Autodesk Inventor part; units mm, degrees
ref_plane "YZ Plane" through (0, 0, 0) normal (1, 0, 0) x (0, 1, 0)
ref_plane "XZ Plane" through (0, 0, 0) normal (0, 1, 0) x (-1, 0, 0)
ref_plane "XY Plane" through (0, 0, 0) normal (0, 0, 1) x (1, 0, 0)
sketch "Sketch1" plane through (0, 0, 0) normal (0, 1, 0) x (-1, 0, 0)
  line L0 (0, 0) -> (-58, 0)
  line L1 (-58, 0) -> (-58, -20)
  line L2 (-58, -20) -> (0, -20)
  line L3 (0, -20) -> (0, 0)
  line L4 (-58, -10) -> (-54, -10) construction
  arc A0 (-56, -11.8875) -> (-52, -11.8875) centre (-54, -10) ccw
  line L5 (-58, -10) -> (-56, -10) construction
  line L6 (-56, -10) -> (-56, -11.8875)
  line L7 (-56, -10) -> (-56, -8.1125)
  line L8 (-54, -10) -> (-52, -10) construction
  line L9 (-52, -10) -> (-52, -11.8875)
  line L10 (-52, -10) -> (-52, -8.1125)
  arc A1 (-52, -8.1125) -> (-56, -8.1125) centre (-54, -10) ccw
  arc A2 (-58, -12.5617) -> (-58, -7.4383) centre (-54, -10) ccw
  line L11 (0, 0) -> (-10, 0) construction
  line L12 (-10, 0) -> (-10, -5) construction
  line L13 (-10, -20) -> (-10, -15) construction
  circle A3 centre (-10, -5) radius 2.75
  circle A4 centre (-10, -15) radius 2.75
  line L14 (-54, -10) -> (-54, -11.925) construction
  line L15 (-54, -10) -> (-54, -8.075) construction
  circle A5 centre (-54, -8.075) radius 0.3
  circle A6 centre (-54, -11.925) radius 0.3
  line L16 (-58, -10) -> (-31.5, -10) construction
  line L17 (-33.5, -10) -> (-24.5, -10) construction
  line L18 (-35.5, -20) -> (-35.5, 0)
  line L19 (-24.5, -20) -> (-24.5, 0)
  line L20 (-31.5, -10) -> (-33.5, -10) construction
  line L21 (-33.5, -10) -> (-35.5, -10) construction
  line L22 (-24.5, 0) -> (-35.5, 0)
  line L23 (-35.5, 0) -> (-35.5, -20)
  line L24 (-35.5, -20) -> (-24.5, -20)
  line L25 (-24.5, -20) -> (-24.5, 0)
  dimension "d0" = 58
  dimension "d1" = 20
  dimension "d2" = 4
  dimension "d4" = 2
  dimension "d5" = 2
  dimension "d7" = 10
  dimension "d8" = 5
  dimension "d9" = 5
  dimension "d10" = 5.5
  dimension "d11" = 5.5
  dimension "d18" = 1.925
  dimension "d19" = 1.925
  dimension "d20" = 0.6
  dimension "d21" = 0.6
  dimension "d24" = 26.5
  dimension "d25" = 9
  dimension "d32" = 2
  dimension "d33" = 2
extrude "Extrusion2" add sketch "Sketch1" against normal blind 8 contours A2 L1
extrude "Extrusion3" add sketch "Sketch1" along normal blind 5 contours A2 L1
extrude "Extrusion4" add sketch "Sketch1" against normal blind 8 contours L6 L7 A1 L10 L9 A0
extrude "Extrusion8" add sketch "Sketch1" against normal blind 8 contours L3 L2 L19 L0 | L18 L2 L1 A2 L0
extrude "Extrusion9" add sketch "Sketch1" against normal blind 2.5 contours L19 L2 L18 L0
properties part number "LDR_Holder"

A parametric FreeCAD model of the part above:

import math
import FreeCAD as App
import Part
import Sketcher

doc = App.newDocument("Part")
params = doc.addObject("Spreadsheet::Sheet", "Params")
for row, (alias, value) in enumerate([
    ("sketch1_radius", "2.75 mm"),
    ("sketch1_width", "4 mm"),
    ("sketch1_radius2", "4.75 mm"),
    ("pad1_length", "8 mm"),
    ("sketch2_radius", "2.75 mm"),
    ("sketch2_width", "4 mm"),
    ("sketch2_radius2", "4.75 mm"),
    ("pad2_length", "5 mm"),
    ("sketch3_diameter", "0.6 mm"),
    ("sketch3_radius", "2.75 mm"),
    ("pad3_length", "8 mm"),
    ("sketch4_diameter", "5.5 mm"),
    ("sketch4_height", "20 mm"),
    ("sketch4_radius", "4.75 mm"),
    ("sketch4_width", "24.5 mm"),
    ("sketch4_width2", "22.5 mm"),
    ("pad4_length", "8 mm"),
    ("sketch5_height", "20 mm"),
    ("sketch5_width", "11 mm"),
    ("pad5_length", "2.5 mm"),
], start=1):
    params.set(f"A{row}", alias)
    params.set(f"B{row}", "=" + value)
    params.setAlias(f"B{row}", alias)

body = doc.addObject("PartDesign::Body", "Body")
body.AllowCompound = True

# Sketch on XZ plane
sketch1 = body.newObject("Sketcher::SketchObject", "Sketch")
sketch1.AttachmentSupport = (doc.getObject("XZ_Plane"), [""])
sketch1.MapMode = "FlatFace"
sketch1.addGeometry([
    Part.ArcOfCircle(Part.Circle(App.Vector(54, -10, 0), App.Vector(0, 0, 1), 4.74998), math.radians(32.636515), math.radians(327.363485)),  # 0
    Part.LineSegment(App.Vector(58, -7.4383, 0), App.Vector(58, -12.5617, 0)),  # 1
    Part.ArcOfCircle(Part.Circle(App.Vector(54, -10, 0), App.Vector(0, 0, 1), 2.750028), math.radians(-136.657615), math.radians(-43.342385)),  # 2
    Part.LineSegment(App.Vector(56, -11.8875, 0), App.Vector(56, -8.1125, 0)),  # 3
    Part.ArcOfCircle(Part.Circle(App.Vector(54, -10, 0), App.Vector(0, 0, 1), 2.750028), math.radians(43.342385), math.radians(136.657615)),  # 4
    Part.LineSegment(App.Vector(52, -8.1125, 0), App.Vector(52, -11.8875, 0)),  # 5
], False)
sketch1.addConstraint([
    Sketcher.Constraint("Coincident", 0, 1, 1, 1),
    Sketcher.Constraint("Coincident", 1, 2, 0, 2),
    Sketcher.Constraint("Coincident", 2, 2, 3, 1),
    Sketcher.Constraint("Coincident", 3, 2, 4, 1),
    Sketcher.Constraint("Coincident", 4, 2, 5, 1),
    Sketcher.Constraint("Coincident", 5, 2, 2, 1),
    Sketcher.Constraint("Vertical", 1),
    Sketcher.Constraint("Vertical", 3),
    Sketcher.Constraint("Vertical", 5),
    Sketcher.Constraint("Coincident", 2, 3, 0, 3),
    Sketcher.Constraint("Coincident", 4, 3, 0, 3),
    Sketcher.Constraint("Equal", 2, 4),
    Sketcher.Constraint("Horizontal", 3, 2, 4, 2),
    Sketcher.Constraint("Radius", 2, 2.75),
    Sketcher.Constraint("DistanceY", 0, 3, -1, 1, 10.0),
    Sketcher.Constraint("DistanceX", -1, 1, 0, 1, 58.0),
    Sketcher.Constraint("DistanceX", 0, 3, 0, 1, 4.0),
    Sketcher.Constraint("DistanceX", 2, 2, 1, 2, 2.0),
    Sketcher.Constraint("Radius", 0, 4.75),
])
sketch1.setExpression("Constraints[13]", "Params.sketch1_radius")
sketch1.setExpression("Constraints[16]", "Params.sketch1_width")
sketch1.setExpression("Constraints[18]", "Params.sketch1_radius2")
pad1 = body.newObject("PartDesign::Pad", "Pad")
pad1.Profile = sketch1
pad1.setExpression("Length", "Params.pad1_length")

# Sketch on XZ plane
sketch2 = body.newObject("Sketcher::SketchObject", "Sketch001")
sketch2.AttachmentSupport = (doc.getObject("XZ_Plane"), [""])
sketch2.MapMode = "FlatFace"
sketch2.addGeometry([
    Part.ArcOfCircle(Part.Circle(App.Vector(54, -10, 0), App.Vector(0, 0, 1), 4.74998), math.radians(32.636515), math.radians(327.363485)),  # 0
    Part.LineSegment(App.Vector(58, -7.4383, 0), App.Vector(58, -12.5617, 0)),  # 1
    Part.ArcOfCircle(Part.Circle(App.Vector(54, -10, 0), App.Vector(0, 0, 1), 2.750028), math.radians(-136.657615), math.radians(-43.342385)),  # 2
    Part.LineSegment(App.Vector(56, -11.8875, 0), App.Vector(56, -8.1125, 0)),  # 3
    Part.ArcOfCircle(Part.Circle(App.Vector(54, -10, 0), App.Vector(0, 0, 1), 2.750028), math.radians(43.342385), math.radians(136.657615)),  # 4
    Part.LineSegment(App.Vector(52, -8.1125, 0), App.Vector(52, -11.8875, 0)),  # 5
], False)
sketch2.addConstraint([
    Sketcher.Constraint("Coincident", 0, 1, 1, 1),
    Sketcher.Constraint("Coincident", 1, 2, 0, 2),
    Sketcher.Constraint("Coincident", 2, 2, 3, 1),
    Sketcher.Constraint("Coincident", 3, 2, 4, 1),
    Sketcher.Constraint("Coincident", 4, 2, 5, 1),
    Sketcher.Constraint("Coincident", 5, 2, 2, 1),
    Sketcher.Constraint("Vertical", 1),
    Sketcher.Constraint("Vertical", 3),
    Sketcher.Constraint("Vertical", 5),
    Sketcher.Constraint("Coincident", 2, 3, 0, 3),
    Sketcher.Constraint("Coincident", 4, 3, 0, 3),
    Sketcher.Constraint("Equal", 2, 4),
    Sketcher.Constraint("Horizontal", 3, 2, 4, 2),
    Sketcher.Constraint("Radius", 2, 2.75),
    Sketcher.Constraint("DistanceY", 0, 3, -1, 1, 10.0),
    Sketcher.Constraint("DistanceX", -1, 1, 0, 1, 58.0),
    Sketcher.Constraint("DistanceX", 0, 3, 0, 1, 4.0),
    Sketcher.Constraint("DistanceX", 2, 2, 1, 2, 2.0),
    Sketcher.Constraint("Radius", 0, 4.75),
])
sketch2.setExpression("Constraints[13]", "Params.sketch2_radius")
sketch2.setExpression("Constraints[16]", "Params.sketch2_width")
sketch2.setExpression("Constraints[18]", "Params.sketch2_radius2")
pad2 = body.newObject("PartDesign::Pad", "Pad001")
pad2.Profile = sketch2
pad2.setExpression("Length", "Params.pad2_length")
pad2.Reversed = True

# Sketch on XZ plane
sketch3 = body.newObject("Sketcher::SketchObject", "Sketch002")
sketch3.AttachmentSupport = (doc.getObject("XZ_Plane"), [""])
sketch3.MapMode = "FlatFace"
sketch3.addGeometry([
    Part.LineSegment(App.Vector(56, -8.1125, 0), App.Vector(56, -11.8875, 0)),  # 0
    Part.ArcOfCircle(Part.Circle(App.Vector(54, -10, 0), App.Vector(0, 0, 1), 2.750028), math.radians(-136.657615), math.radians(-43.342385)),  # 1
    Part.LineSegment(App.Vector(52, -11.8875, 0), App.Vector(52, -8.1125, 0)),  # 2
    Part.ArcOfCircle(Part.Circle(App.Vector(54, -10, 0), App.Vector(0, 0, 1), 2.750028), math.radians(43.342385), math.radians(136.657615)),  # 3
    Part.Circle(App.Vector(54, -11.925, 0), App.Vector(0, 0, 1), 0.3),  # 4
    Part.Circle(App.Vector(54, -8.075, 0), App.Vector(0, 0, 1), 0.3),  # 5
], False)
sketch3.addConstraint([
    Sketcher.Constraint("Coincident", 0, 2, 1, 2),
    Sketcher.Constraint("Coincident", 1, 1, 2, 1),
    Sketcher.Constraint("Coincident", 2, 2, 3, 2),
    Sketcher.Constraint("Coincident", 3, 1, 0, 1),
    Sketcher.Constraint("Vertical", 0),
    Sketcher.Constraint("Vertical", 2),
    Sketcher.Constraint("Coincident", 3, 3, 1, 3),
    Sketcher.Constraint("Equal", 1, 3),
    Sketcher.Constraint("Equal", 4, 5),
    Sketcher.Constraint("Horizontal", 0, 2, 1, 1),
    Sketcher.Constraint("Vertical", 3, 3, 4, 3),
    Sketcher.Constraint("Vertical", 4, 3, 5, 3),
    Sketcher.Constraint("Diameter", 4, 0.6),
    Sketcher.Constraint("Radius", 1, 2.75),
    Sketcher.Constraint("DistanceY", 1, 3, -1, 1, 10.0),
    Sketcher.Constraint("DistanceX", 4, 3, 0, 2, 2.0),
    Sketcher.Constraint("DistanceX", -1, 1, 1, 3, 54.0),
    Sketcher.Constraint("DistanceY", 4, 3, 1, 3, 1.925),
    Sketcher.Constraint("DistanceY", 1, 3, 5, 3, 1.925),
])
sketch3.setExpression("Constraints[12]", "Params.sketch3_diameter")
sketch3.setExpression("Constraints[13]", "Params.sketch3_radius")
pad3 = body.newObject("PartDesign::Pad", "Pad002")
pad3.Profile = sketch3
pad3.setExpression("Length", "Params.pad3_length")

# Sketch on XZ plane
sketch4 = body.newObject("Sketcher::SketchObject", "Sketch003")
sketch4.AttachmentSupport = (doc.getObject("XZ_Plane"), [""])
sketch4.MapMode = "FlatFace"
sketch4.addGeometry([
    Part.LineSegment(App.Vector(0, -20, 0), App.Vector(0, 0, 0)),  # 0
    Part.LineSegment(App.Vector(0, 0, 0), App.Vector(24.5, 0, 0)),  # 1
    Part.LineSegment(App.Vector(24.5, 0, 0), App.Vector(24.5, -20, 0)),  # 2
    Part.LineSegment(App.Vector(24.5, -20, 0), App.Vector(0, -20, 0)),  # 3
    Part.Circle(App.Vector(10, -15, 0), App.Vector(0, 0, 1), 2.75),  # 4
    Part.Circle(App.Vector(10, -5, 0), App.Vector(0, 0, 1), 2.75),  # 5
    Part.LineSegment(App.Vector(35.5, -20, 0), App.Vector(35.5, 0, 0)),  # 6
    Part.LineSegment(App.Vector(35.5, 0, 0), App.Vector(58, 0, 0)),  # 7
    Part.LineSegment(App.Vector(58, 0, 0), App.Vector(58, -7.4383, 0)),  # 8
    Part.ArcOfCircle(Part.Circle(App.Vector(54, -10, 0), App.Vector(0, 0, 1), 4.74998), math.radians(32.636515), math.radians(327.363485)),  # 9
    Part.LineSegment(App.Vector(58, -12.5617, 0), App.Vector(58, -20, 0)),  # 10
    Part.LineSegment(App.Vector(58, -20, 0), App.Vector(35.5, -20, 0)),  # 11
], False)
sketch4.addConstraint([
    Sketcher.Constraint("Coincident", 0, 2, 1, 1),
    Sketcher.Constraint("Coincident", 1, 2, 2, 1),
    Sketcher.Constraint("Coincident", 2, 2, 3, 1),
    Sketcher.Constraint("Coincident", 3, 2, 0, 1),
    Sketcher.Constraint("Coincident", 6, 2, 7, 1),
    Sketcher.Constraint("Coincident", 7, 2, 8, 1),
    Sketcher.Constraint("Coincident", 8, 2, 9, 1),
    Sketcher.Constraint("Coincident", 9, 2, 10, 1),
    Sketcher.Constraint("Coincident", 10, 2, 11, 1),
    Sketcher.Constraint("Coincident", 11, 2, 6, 1),
    Sketcher.Constraint("Vertical", 0),
    Sketcher.Constraint("Horizontal", 1),
    Sketcher.Constraint("Vertical", 2),
    Sketcher.Constraint("Horizontal", 3),
    Sketcher.Constraint("Vertical", 6),
    Sketcher.Constraint("Horizontal", 7),
    Sketcher.Constraint("Vertical", 8),
    Sketcher.Constraint("Vertical", 10),
    Sketcher.Constraint("Horizontal", 11),
    Sketcher.Constraint("Coincident", 0, 2, -1, 1),
    Sketcher.Constraint("Equal", 4, 5),
    Sketcher.Constraint("PointOnObject", 6, 2, -1),
    Sketcher.Constraint("Horizontal", 3, 2, 10, 2),
    Sketcher.Constraint("Vertical", 4, 3, 5, 3),
    Sketcher.Constraint("Vertical", 8, 2, 9, 2),
    Sketcher.Constraint("Equal", 8, 10),
    Sketcher.Constraint("Diameter", 4, 5.5),
    Sketcher.Constraint("DistanceY", 0, 1, 0, 2, 20.0),
    Sketcher.Constraint("DistanceX", -1, 1, 4, 3, 10.0),
    Sketcher.Constraint("DistanceY", 5, 3, -1, 1, 5.0),
    Sketcher.Constraint("DistanceX", -1, 1, 7, 2, 58.0),
    Sketcher.Constraint("DistanceY", 4, 3, 5, 3, 10.0),
    Sketcher.Constraint("DistanceX", 9, 3, 7, 2, 4.0),
    Sketcher.Constraint("Radius", 9, 4.75),
    Sketcher.Constraint("DistanceX", 1, 1, 1, 2, 24.5),
    Sketcher.Constraint("DistanceX", 7, 1, 7, 2, 22.5),
])
sketch4.setExpression("Constraints[26]", "Params.sketch4_diameter")
sketch4.setExpression("Constraints[27]", "Params.sketch4_height")
sketch4.setExpression("Constraints[33]", "Params.sketch4_radius")
sketch4.setExpression("Constraints[34]", "Params.sketch4_width")
sketch4.setExpression("Constraints[35]", "Params.sketch4_width2")
pad4 = body.newObject("PartDesign::Pad", "Pad003")
pad4.Profile = sketch4
pad4.setExpression("Length", "Params.pad4_length")

# Sketch on XZ plane
sketch5 = body.newObject("Sketcher::SketchObject", "Sketch004")
sketch5.AttachmentSupport = (doc.getObject("XZ_Plane"), [""])
sketch5.MapMode = "FlatFace"
sketch5.addGeometry([
    Part.LineSegment(App.Vector(24.5, -20, 0), App.Vector(24.5, 0, 0)),
    Part.LineSegment(App.Vector(24.5, 0, 0), App.Vector(35.5, 0, 0)),
    Part.LineSegment(App.Vector(35.5, 0, 0), App.Vector(35.5, -20, 0)),
    Part.LineSegment(App.Vector(35.5, -20, 0), App.Vector(24.5, -20, 0)),
], False)
sketch5.addConstraint([
    Sketcher.Constraint("Coincident", 0, 2, 1, 1),
    Sketcher.Constraint("Coincident", 1, 2, 2, 1),
    Sketcher.Constraint("Coincident", 2, 2, 3, 1),
    Sketcher.Constraint("Coincident", 3, 2, 0, 1),
    Sketcher.Constraint("Vertical", 0),
    Sketcher.Constraint("Horizontal", 1),
    Sketcher.Constraint("Vertical", 2),
    Sketcher.Constraint("Horizontal", 3),
    Sketcher.Constraint("PointOnObject", 0, 2, -1),
    Sketcher.Constraint("DistanceY", 0, 1, 0, 2, 20.0),
    Sketcher.Constraint("DistanceX", 1, 1, 1, 2, 11.0),
    Sketcher.Constraint("DistanceX", -1, 1, 0, 2, 24.5),
])
sketch5.setExpression("Constraints[9]", "Params.sketch5_height")
sketch5.setExpression("Constraints[10]", "Params.sketch5_width")
pad5 = body.newObject("PartDesign::Pad", "Pad004")
pad5.Profile = sketch5
pad5.setExpression("Length", "Params.pad5_length")

doc.recompute()
